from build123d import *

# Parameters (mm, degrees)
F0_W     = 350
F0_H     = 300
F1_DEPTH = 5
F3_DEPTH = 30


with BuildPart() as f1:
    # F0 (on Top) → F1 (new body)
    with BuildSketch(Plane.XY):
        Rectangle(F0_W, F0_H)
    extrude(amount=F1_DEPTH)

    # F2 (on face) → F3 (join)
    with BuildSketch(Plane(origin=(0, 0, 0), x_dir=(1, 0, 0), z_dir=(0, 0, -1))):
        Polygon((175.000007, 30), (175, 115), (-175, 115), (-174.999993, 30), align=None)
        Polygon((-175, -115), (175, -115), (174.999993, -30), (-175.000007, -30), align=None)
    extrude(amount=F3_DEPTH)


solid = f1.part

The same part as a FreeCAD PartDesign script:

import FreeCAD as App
import Part
import Sketcher
from FreeCAD import Vector
Q = App.Units.Quantity

doc = App.newDocument("Part")
body = doc.addObject("PartDesign::Body", "Body")

# Sketch on XY plane
sketch1 = doc.addObject("Sketcher::SketchObject", "Sketch")
body.addObject(sketch1)
sketch1.AttachmentSupport = (doc.XY_Plane, [""])
sketch1.MapMode = "FlatFace"
sketch1.addGeometry([
    Part.LineSegment(Vector(-175, 150, 0), Vector(-175, -150, 0)),
    Part.LineSegment(Vector(-175, -150, 0), Vector(175, -150, 0)),
    Part.LineSegment(Vector(175, -150, 0), Vector(175, 150, 0)),
    Part.LineSegment(Vector(175, 150, 0), Vector(-175, 150, 0)),
], False)
sketch1.addConstraint([
    Sketcher.Constraint("Coincident", 0, 2, 1, 1),
    Sketcher.Constraint("Coincident", 1, 2, 2, 1),
    Sketcher.Constraint("Coincident", 2, 2, 3, 1),
    Sketcher.Constraint("Coincident", 3, 2, 0, 1),
    Sketcher.Constraint("Vertical", 0),
    Sketcher.Constraint("Horizontal", 1),
    Sketcher.Constraint("Vertical", 2),
    Sketcher.Constraint("Horizontal", 3),
    Sketcher.Constraint("Symmetric", 0, 2, 2, 2, -1, 1),
    Sketcher.Constraint("DistanceX", 1, 1, 1, 2, 350.0),
    Sketcher.Constraint("DistanceY", 0, 2, 0, 1, 300.0),
])
pad1 = doc.addObject("PartDesign::Pad", "Pad")
body.addObject(pad1)
pad1.Profile = sketch1
pad1.Length = 5

# Sketch on XY plane
sketch2 = doc.addObject("Sketcher::SketchObject", "Sketch001")
body.addObject(sketch2)
sketch2.AttachmentSupport = (doc.XY_Plane, [""])
sketch2.MapMode = "FlatFace"
sketch2.addGeometry([
    Part.LineSegment(Vector(175, -30, 0), Vector(175, -115, 0)),  # 0
    Part.LineSegment(Vector(175, -115, 0), Vector(-175, -115, 0)),  # 1
    Part.LineSegment(Vector(-175, -115, 0), Vector(-175, -30, 0)),  # 2
    Part.LineSegment(Vector(-175, -30, 0), Vector(175, -30, 0)),  # 3
    Part.LineSegment(Vector(-175, 115, 0), Vector(175, 115, 0)),  # 4
    Part.LineSegment(Vector(175, 115, 0), Vector(175, 30, 0)),  # 5
    Part.LineSegment(Vector(175, 30, 0), Vector(-175, 30, 0)),  # 6
    Part.LineSegment(Vector(-175, 30, 0), Vector(-175, 115, 0)),  # 7
], False)
sketch2.addConstraint([
    Sketcher.Constraint("Coincident", 0, 2, 1, 1),
    Sketcher.Constraint("Coincident", 1, 2, 2, 1),
    Sketcher.Constraint("Coincident", 2, 2, 3, 1),
    Sketcher.Constraint("Coincident", 3, 2, 0, 1),
    Sketcher.Constraint("Coincident", 4, 2, 5, 1),
    Sketcher.Constraint("Coincident", 5, 2, 6, 1),
    Sketcher.Constraint("Coincident", 6, 2, 7, 1),
    Sketcher.Constraint("Coincident", 7, 2, 4, 1),
    Sketcher.Constraint("Horizontal", 1),
    Sketcher.Constraint("Horizontal", 3),
    Sketcher.Constraint("Horizontal", 4),
    Sketcher.Constraint("Horizontal", 6),
    Sketcher.Constraint("Symmetric", 1, 2, 4, 2, -1, 1),
    Sketcher.Constraint("Symmetric", 2, 2, 5, 2, -1, 1),
    Sketcher.Constraint("Parallel", 0, 2),
    Sketcher.Constraint("Parallel", 5, 7),
    Sketcher.Constraint("Vertical", 0, 2, 4, 2),
    Sketcher.Constraint("Vertical", 1, 2, 7, 2),
    Sketcher.Constraint("DistanceX", 1, 2, 1, 1, 350.0),
    Sketcher.Constraint("Angle", 0, Q("-90.000005 deg")),
    Sketcher.Constraint("Distance", 0, 85.0),
    Sketcher.Constraint("DistanceY", 0, 2, -1, 1, 115.0),
])
pad2 = doc.addObject("PartDesign::Pad", "Pad001")
body.addObject(pad2)
pad2.Profile = sketch2
pad2.Length = 30
pad2.Reversed = True

doc.recompute()
